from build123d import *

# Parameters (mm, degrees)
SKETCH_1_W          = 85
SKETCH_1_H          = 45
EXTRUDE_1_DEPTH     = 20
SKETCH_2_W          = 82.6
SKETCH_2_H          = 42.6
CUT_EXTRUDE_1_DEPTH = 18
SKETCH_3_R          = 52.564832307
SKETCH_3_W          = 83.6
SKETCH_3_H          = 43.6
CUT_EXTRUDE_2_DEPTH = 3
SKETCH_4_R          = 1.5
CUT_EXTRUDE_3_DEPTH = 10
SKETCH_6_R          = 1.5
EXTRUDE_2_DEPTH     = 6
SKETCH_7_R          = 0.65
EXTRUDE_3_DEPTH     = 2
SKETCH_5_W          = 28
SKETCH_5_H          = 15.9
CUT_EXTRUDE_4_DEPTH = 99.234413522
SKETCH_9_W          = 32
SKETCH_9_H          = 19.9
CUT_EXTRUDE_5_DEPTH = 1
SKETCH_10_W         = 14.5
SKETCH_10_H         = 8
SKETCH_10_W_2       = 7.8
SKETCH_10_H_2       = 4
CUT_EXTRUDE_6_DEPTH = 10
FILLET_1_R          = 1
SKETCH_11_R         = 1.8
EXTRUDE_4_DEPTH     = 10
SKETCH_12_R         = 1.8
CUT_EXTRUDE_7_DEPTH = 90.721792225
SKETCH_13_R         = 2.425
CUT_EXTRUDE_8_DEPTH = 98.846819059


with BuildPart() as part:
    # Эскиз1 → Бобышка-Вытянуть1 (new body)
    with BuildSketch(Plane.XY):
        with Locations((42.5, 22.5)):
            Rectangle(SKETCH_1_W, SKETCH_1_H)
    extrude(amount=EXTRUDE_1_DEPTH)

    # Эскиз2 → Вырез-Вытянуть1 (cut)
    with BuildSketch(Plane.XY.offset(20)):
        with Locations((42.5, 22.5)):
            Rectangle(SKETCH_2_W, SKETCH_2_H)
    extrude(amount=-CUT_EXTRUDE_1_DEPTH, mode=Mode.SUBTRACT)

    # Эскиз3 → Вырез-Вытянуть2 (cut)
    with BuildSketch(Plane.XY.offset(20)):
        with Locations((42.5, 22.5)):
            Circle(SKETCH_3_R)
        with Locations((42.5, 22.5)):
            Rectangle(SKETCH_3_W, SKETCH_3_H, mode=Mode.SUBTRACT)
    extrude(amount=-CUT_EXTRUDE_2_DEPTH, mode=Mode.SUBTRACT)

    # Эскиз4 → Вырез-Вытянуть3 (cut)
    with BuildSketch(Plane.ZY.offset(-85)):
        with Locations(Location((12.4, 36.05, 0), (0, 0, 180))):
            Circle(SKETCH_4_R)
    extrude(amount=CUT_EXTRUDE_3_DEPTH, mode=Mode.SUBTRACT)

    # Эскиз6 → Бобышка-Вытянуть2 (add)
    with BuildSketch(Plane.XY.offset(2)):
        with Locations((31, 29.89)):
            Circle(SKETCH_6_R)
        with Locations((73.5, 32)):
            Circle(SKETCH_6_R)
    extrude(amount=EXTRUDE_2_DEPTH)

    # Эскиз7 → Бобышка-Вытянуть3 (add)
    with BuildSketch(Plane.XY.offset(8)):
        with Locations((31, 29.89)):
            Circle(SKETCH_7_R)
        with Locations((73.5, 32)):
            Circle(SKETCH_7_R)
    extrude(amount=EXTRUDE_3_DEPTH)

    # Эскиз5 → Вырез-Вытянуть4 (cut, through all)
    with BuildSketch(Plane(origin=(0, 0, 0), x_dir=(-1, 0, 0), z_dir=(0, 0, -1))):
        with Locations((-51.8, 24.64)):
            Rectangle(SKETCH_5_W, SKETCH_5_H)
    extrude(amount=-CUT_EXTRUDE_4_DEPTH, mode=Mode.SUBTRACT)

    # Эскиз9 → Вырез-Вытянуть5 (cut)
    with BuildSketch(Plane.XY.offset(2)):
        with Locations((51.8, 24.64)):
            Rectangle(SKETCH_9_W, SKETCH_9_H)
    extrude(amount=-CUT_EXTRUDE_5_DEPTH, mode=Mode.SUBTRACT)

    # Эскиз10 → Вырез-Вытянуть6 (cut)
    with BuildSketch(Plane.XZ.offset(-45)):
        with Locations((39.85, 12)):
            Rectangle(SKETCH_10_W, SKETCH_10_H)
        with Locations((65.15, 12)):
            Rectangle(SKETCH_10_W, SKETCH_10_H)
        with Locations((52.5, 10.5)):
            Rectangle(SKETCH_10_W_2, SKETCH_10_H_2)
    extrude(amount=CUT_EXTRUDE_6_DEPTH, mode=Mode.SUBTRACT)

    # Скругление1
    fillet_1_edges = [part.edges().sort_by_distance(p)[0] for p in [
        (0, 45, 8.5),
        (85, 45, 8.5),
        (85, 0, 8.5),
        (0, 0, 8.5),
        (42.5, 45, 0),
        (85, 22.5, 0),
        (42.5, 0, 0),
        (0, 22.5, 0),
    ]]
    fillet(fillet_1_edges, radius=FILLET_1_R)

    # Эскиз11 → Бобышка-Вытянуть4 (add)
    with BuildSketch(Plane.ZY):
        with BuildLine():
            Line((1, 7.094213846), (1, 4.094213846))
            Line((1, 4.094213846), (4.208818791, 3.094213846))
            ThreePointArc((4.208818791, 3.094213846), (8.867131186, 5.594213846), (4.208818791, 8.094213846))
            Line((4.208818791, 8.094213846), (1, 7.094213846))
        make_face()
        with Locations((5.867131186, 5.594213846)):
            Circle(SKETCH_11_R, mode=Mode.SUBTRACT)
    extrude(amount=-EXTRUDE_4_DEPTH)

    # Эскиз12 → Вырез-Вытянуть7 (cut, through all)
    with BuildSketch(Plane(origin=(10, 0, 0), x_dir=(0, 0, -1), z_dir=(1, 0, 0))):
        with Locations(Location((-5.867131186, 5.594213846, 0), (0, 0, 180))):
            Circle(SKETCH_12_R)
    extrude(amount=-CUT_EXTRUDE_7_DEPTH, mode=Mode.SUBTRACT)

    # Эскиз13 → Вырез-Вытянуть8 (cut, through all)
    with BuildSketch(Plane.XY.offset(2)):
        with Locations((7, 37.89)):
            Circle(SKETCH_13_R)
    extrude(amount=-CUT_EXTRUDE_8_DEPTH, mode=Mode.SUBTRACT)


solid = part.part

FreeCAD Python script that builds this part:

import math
import FreeCAD as App
import Part
import Sketcher

V = App.Vector
Q = App.Units.Quantity


def edges_at(feature, points):
    """Names of the edges that pass closest to the given points."""
    edges = feature.Shape.Edges
    near = lambda p: min(range(len(edges)), key=lambda i: edges[i].distToShape(Part.Vertex(*p))[0])
    return sorted({f"Edge{near(p) + 1}" for p in points})


def add_polygon(sketch, points):
    """Adds a closed chain of lines whose ends are joined by coincident constraints."""
    first, n = sketch.GeometryCount, len(points)
    for a, b in zip(points, points[1:] + points[:1]):
        sketch.addGeometry(Part.LineSegment(App.Vector(*a, 0), App.Vector(*b, 0)), False)
    for i in range(n):
        sketch.addConstraint(Sketcher.Constraint("Coincident", first + i, 2, first + (i + 1) % n, 1))

doc = App.newDocument("Part")
body = doc.addObject("PartDesign::Body", "Body")

# Sketch on XY plane
sketch1 = body.newObject("Sketcher::SketchObject", "Sketch")
sketch1.AttachmentSupport = (doc.getObject("XY_Plane"), [""])
sketch1.MapMode = "FlatFace"
add_polygon(sketch1, [(0, 45), (0, 0), (85, 0), (85, 45)])  # lines 0-3
sketch1.addConstraint(Sketcher.Constraint("Vertical", 0))
sketch1.addConstraint(Sketcher.Constraint("Horizontal", 1))
sketch1.addConstraint(Sketcher.Constraint("Vertical", 2))
sketch1.addConstraint(Sketcher.Constraint("Horizontal", 3))
sketch1.addConstraint(Sketcher.Constraint("Coincident", 0, 2, -1, 1))
sketch1.addConstraint(Sketcher.Constraint("DistanceX", 1, 1, 1, 2, Q("85 mm")))
sketch1.addConstraint(Sketcher.Constraint("DistanceY", 0, 2, 0, 1, Q("45 mm")))
pad1 = body.newObject("PartDesign::Pad", "Pad")
pad1.Profile = sketch1
pad1.Length = 20

# Sketch on XY plane
sketch2 = body.newObject("Sketcher::SketchObject", "Sketch001")
sketch2.AttachmentSupport = (doc.getObject("XY_Plane"), [""])
sketch2.MapMode = "FlatFace"
sketch2.AttachmentOffset = App.Placement(V(0, 0, 20), App.Rotation())
add_polygon(sketch2, [(1, 44), (1, 1), (84, 1), (84, 44)])  # lines 0-3
sketch2.addConstraint(Sketcher.Constraint("Vertical", 0))
sketch2.addConstraint(Sketcher.Constraint("Horizontal", 1))
sketch2.addConstraint(Sketcher.Constraint("Vertical", 2))
sketch2.addConstraint(Sketcher.Constraint("Horizontal", 3))
sketch2.addConstraint(Sketcher.Constraint("DistanceX", 1, 1, 1, 2, Q("82.6 mm")))
sketch2.addConstraint(Sketcher.Constraint("DistanceY", 0, 2, 0, 1, Q("42.6 mm")))
sketch2.addConstraint(Sketcher.Constraint("DistanceX", -1, 1, 0, 2, Q("1.2 mm")))
sketch2.addConstraint(Sketcher.Constraint("DistanceY", -1, 1, 0, 2, Q("1.2 mm")))
pocket1 = body.newObject("PartDesign::Pocket", "Pocket")
pocket1.Profile = sketch2
pocket1.Length = 18

# Sketch on XY plane
sketch3 = body.newObject("Sketcher::SketchObject", "Sketch002")
sketch3.AttachmentSupport = (doc.getObject("XY_Plane"), [""])
sketch3.MapMode = "FlatFace"
sketch3.AttachmentOffset = App.Placement(V(0, 0, 20), App.Rotation())
sketch3.addGeometry(Part.Circle(V(42, 22, 0), V(0, 0, 1), 53), False)  # 0
add_polygon(sketch3, [(84, 1), (1, 1), (1, 44), (84, 44)])  # lines 1-4
sketch3.addConstraint(Sketcher.Constraint("Horizontal", 1))
sketch3.addConstraint(Sketcher.Constraint("Vertical", 2))
sketch3.addConstraint(Sketcher.Constraint("Horizontal", 3))
sketch3.addConstraint(Sketcher.Constraint("Vertical", 4))
sketch3.addConstraint(Sketcher.Constraint("DistanceX", 1, 2, 1, 1, Q("83.6 mm")))
sketch3.addConstraint(Sketcher.Constraint("DistanceY", 2, 1, 2, 2, Q("43.6 mm")))
sketch3.addConstraint(Sketcher.Constraint("DistanceX", -1, 1, 0, 3, Q("42.5 mm")))
sketch3.addConstraint(Sketcher.Constraint("DistanceY", -1, 1, 0, 3, Q("22.5 mm")))
sketch3.addConstraint(Sketcher.Constraint("DistanceX", -1, 1, 1, 2, Q("0.7 mm")))
sketch3.addConstraint(Sketcher.Constraint("DistanceY", -1, 1, 1, 2, Q("0.7 mm")))
sketch3.addConstraint(Sketcher.Constraint("Diameter", 0, Q("105.129665 mm")))
pocket2 = body.newObject("PartDesign::Pocket", "Pocket001")
pocket2.Profile = sketch3
pocket2.Length = 3

# Sketch on YZ plane
sketch4 = body.newObject("Sketcher::SketchObject", "Sketch003")
sketch4.AttachmentSupport = (doc.getObject("YZ_Plane"), [""])
sketch4.MapMode = "FlatFace"
sketch4.AttachmentOffset = App.Placement(V(0, 0, 85), App.Rotation())
sketch4.addGeometry(Part.Circle(V(36, 12.4, 0), V(0, 0, 1), 1.5), False)
sketch4.addConstraint(Sketcher.Constraint("Diameter", 0, Q("3 mm")))
sketch4.addConstraint(Sketcher.Constraint("DistanceY", -1, 1, 0, 3, Q("12.4 mm")))
sketch4.addConstraint(Sketcher.Constraint("DistanceX", -1, 1, 0, 3, Q("36.05 mm")))
pocket3 = body.newObject("PartDesign::Pocket", "Pocket002")
pocket3.Profile = sketch4
pocket3.Length = 10

# Sketch on XY plane
sketch5 = body.newObject("Sketcher::SketchObject", "Sketch004")
sketch5.AttachmentSupport = (doc.getObject("XY_Plane"), [""])
sketch5.MapMode = "FlatFace"
sketch5.AttachmentOffset = App.Placement(V(0, 0, 2), App.Rotation())
sketch5.addGeometry(Part.Circle(V(31, 29.9, 0), V(0, 0, 1), 1.5), False)
sketch5.addGeometry(Part.Circle(V(73.5, 32, 0), V(0, 0, 1), 1.5), False)
sketch5.addConstraint(Sketcher.Constraint("Equal", 0, 1))
sketch5.addConstraint(Sketcher.Constraint("Diameter", 0, Q("3 mm")))
sketch5.addConstraint(Sketcher.Constraint("DistanceX", -1, 1, 0, 3, Q("31 mm")))
sketch5.addConstraint(Sketcher.Constraint("DistanceY", -1, 1, 1, 3, Q("32 mm")))
sketch5.addConstraint(Sketcher.Constraint("DistanceX", -1, 1, 1, 3, Q("73.5 mm")))
sketch5.addConstraint(Sketcher.Constraint("DistanceY", -1, 1, 0, 3, Q("29.89 mm")))
pad2 = body.newObject("PartDesign::Pad", "Pad001")
pad2.Profile = sketch5
pad2.Length = 6

# Sketch on XY plane
sketch6 = body.newObject("Sketcher::SketchObject", "Sketch005")
sketch6.AttachmentSupport = (doc.getObject("XY_Plane"), [""])
sketch6.MapMode = "FlatFace"
sketch6.AttachmentOffset = App.Placement(V(0, 0, 8), App.Rotation())
sketch6.addGeometry(Part.Circle(V(31, 29.9, 0), V(0, 0, 1), 0.7), False)
sketch6.addGeometry(Part.Circle(V(73.5, 32, 0), V(0, 0, 1), 0.7), False)
sketch6.addConstraint(Sketcher.Constraint("Equal", 0, 1))
sketch6.addConstraint(Sketcher.Constraint("Diameter", 0, Q("1.3 mm")))
sketch6.addConstraint(Sketcher.Constraint("DistanceX", -1, 1, 0, 3, Q("31 mm")))
sketch6.addConstraint(Sketcher.Constraint("DistanceY", -1, 1, 1, 3, Q("32 mm")))
sketch6.addConstraint(Sketcher.Constraint("DistanceX", -1, 1, 1, 3, Q("73.5 mm")))
sketch6.addConstraint(Sketcher.Constraint("DistanceY", -1, 1, 0, 3, Q("29.89 mm")))
pad3 = body.newObject("PartDesign::Pad", "Pad002")
pad3.Profile = sketch6
pad3.Length = 2

# Sketch on XY plane
sketch7 = body.newObject("Sketcher::SketchObject", "Sketch006")
sketch7.AttachmentSupport = (doc.getObject("XY_Plane"), [""])
sketch7.MapMode = "FlatFace"
add_polygon(sketch7, [(66, 33), (66, 17), (38, 17), (38, 33)])  # lines 0-3
sketch7.addConstraint(Sketcher.Constraint("Vertical", 0))
sketch7.addConstraint(Sketcher.Constraint("Horizontal", 1))
sketch7.addConstraint(Sketcher.Constraint("Vertical", 2))
sketch7.addConstraint(Sketcher.Constraint("Horizontal", 3))
sketch7.addConstraint(Sketcher.Constraint("DistanceX", 1, 2, 1, 1, Q("28 mm")))
sketch7.addConstraint(Sketcher.Constraint("DistanceY", 0, 2, 0, 1, Q("15.9 mm")))
sketch7.addConstraint(Sketcher.Constraint("DistanceX", -1, 1, 0, 2, Q("65.8 mm")))
sketch7.addConstraint(Sketcher.Constraint("DistanceY", -1, 1, 0, 2, Q("16.69 mm")))
pocket4 = body.newObject("PartDesign::Pocket", "Pocket003")
pocket4.Profile = sketch7
pocket4.Type = "ThroughAll"
pocket4.Reversed = True

# Sketch on XY plane
sketch8 = body.newObject("Sketcher::SketchObject", "Sketch007")
sketch8.AttachmentSupport = (doc.getObject("XY_Plane"), [""])
sketch8.MapMode = "FlatFace"
sketch8.AttachmentOffset = App.Placement(V(0, 0, 2), App.Rotation())
add_polygon(sketch8, [(36, 35), (36, 15), (68, 15), (68, 35)])  # lines 0-3
sketch8.addConstraint(Sketcher.Constraint("Vertical", 0))
sketch8.addConstraint(Sketcher.Constraint("Horizontal", 1))
sketch8.addConstraint(Sketcher.Constraint("Vertical", 2))
sketch8.addConstraint(Sketcher.Constraint("Horizontal", 3))
sketch8.addConstraint(Sketcher.Constraint("DistanceX", 1, 1, 1, 2, Q("32 mm")))
sketch8.addConstraint(Sketcher.Constraint("DistanceY", 0, 2, 0, 1, Q("19.9 mm")))
sketch8.addConstraint(Sketcher.Constraint("DistanceX", -1, 1, 0, 2, Q("35.8 mm")))
sketch8.addConstraint(Sketcher.Constraint("DistanceY", -1, 1, 0, 2, Q("14.69 mm")))
pocket5 = body.newObject("PartDesign::Pocket", "Pocket004")
pocket5.Profile = sketch8
pocket5.Length = 1

# Sketch on XZ plane
sketch9 = body.newObject("Sketcher::SketchObject", "Sketch008")
sketch9.AttachmentSupport = (doc.getObject("XZ_Plane"), [""])
sketch9.MapMode = "FlatFace"
sketch9.AttachmentOffset = App.Placement(V(0, 0, -45), App.Rotation())
add_polygon(sketch9, [(32.6, 16), (32.6, 8), (47.1, 8), (47.1, 16)])  # lines 0-3
add_polygon(sketch9, [(57.9, 16), (57.9, 8), (72.4, 8), (72.4, 16)])  # lines 4-7
add_polygon(sketch9, [(48.6, 12.5), (48.6, 8.5), (56.4, 8.5), (56.4, 12.5)])  # lines 8-11
sketch9.addConstraint(Sketcher.Constraint("Vertical", 0))
sketch9.addConstraint(Sketcher.Constraint("Horizontal", 1))
sketch9.addConstraint(Sketcher.Constraint("Vertical", 2))
sketch9.addConstraint(Sketcher.Constraint("Horizontal", 3))
sketch9.addConstraint(Sketcher.Constraint("Vertical", 4))
sketch9.addConstraint(Sketcher.Constraint("Horizontal", 5))
sketch9.addConstraint(Sketcher.Constraint("Vertical", 6))
sketch9.addConstraint(Sketcher.Constraint("Horizontal", 7))
sketch9.addConstraint(Sketcher.Constraint("Vertical", 8))
sketch9.addConstraint(Sketcher.Constraint("Horizontal", 9))
sketch9.addConstraint(Sketcher.Constraint("Vertical", 10))
sketch9.addConstraint(Sketcher.Constraint("Horizontal", 11))
sketch9.addConstraint(Sketcher.Constraint("Horizontal", 1, 2, 4, 2))
sketch9.addConstraint(Sketcher.Constraint("Horizontal", 3, 2, 6, 2))
sketch9.addConstraint(Sketcher.Constraint("Equal", 3, 5))
sketch9.addConstraint(Sketcher.Constraint("DistanceY", 0, 2, 0, 1, Q("8 mm")))
sketch9.addConstraint(Sketcher.Constraint("DistanceY", 8, 2, 8, 1, Q("4 mm")))
sketch9.addConstraint(Sketcher.Constraint("DistanceX", 1, 1, 1, 2, Q("14.5 mm")))
sketch9.addConstraint(Sketcher.Constraint("DistanceX", 9, 1, 9, 2, Q("7.8 mm")))
sketch9.addConstraint(Sketcher.Constraint("DistanceY", -1, 1, 0, 2, Q("8 mm")))
sketch9.addConstraint(Sketcher.Constraint("DistanceX", 0, 2, 8, 2, Q("16 mm")))
sketch9.addConstraint(Sketcher.Constraint("DistanceX", -1, 1, 0, 2, Q("32.6 mm")))
sketch9.addConstraint(Sketcher.Constraint("DistanceX", -1, 1, 4, 2, Q("57.9 mm")))
sketch9.addConstraint(Sketcher.Constraint("DistanceY", -1, 1, 8, 2, Q("8.5 mm")))
pocket6 = body.newObject("PartDesign::Pocket", "Pocket005")
pocket6.Profile = sketch9
pocket6.Length = 10
pocket6.Reversed = True
doc.recompute()

fillet = body.newObject("PartDesign::Fillet", "Fillet")
fillet.Base = (pocket6, edges_at(pocket6, [
    (0, 45, 8.5),
    (85, 45, 8.5),
    (85, 0, 8.5),
    (0, 0, 8.5),
    (42.5, 45, 0),
    (85, 22.5, 0),
    (42.5, 0, 0),
    (0, 22.5, 0),
]))
fillet.Radius = 1

# Sketch on YZ plane
sketch10 = body.newObject("Sketcher::SketchObject", "Sketch009")
sketch10.AttachmentSupport = (doc.getObject("YZ_Plane"), [""])
sketch10.MapMode = "FlatFace"
sketch10.addGeometry(Part.LineSegment(V(7.1, 1, 0), V(4.1, 1, 0)), False)
sketch10.addGeometry(Part.LineSegment(V(4.1, 1, 0), V(3.1, 4.2, 0)), False)
sketch10.addGeometry(Part.ArcOfCircle(Part.Circle(V(5.6, 5.9, 0), V(0, 0, 1), 3), math.radians(-34), math.radians(214)), False)
sketch10.addGeometry(Part.LineSegment(V(8.1, 4.2, 0), V(7.1, 1, 0)), False)
sketch10.addGeometry(Part.Circle(V(5.6, 5.9, 0), V(0, 0, 1), 1.8), False)
sketch10.addConstraint(Sketcher.Constraint("Coincident", 0, 2, 1, 1))
sketch10.addConstraint(Sketcher.Constraint("Coincident", 1, 2, 2, 2))
sketch10.addConstraint(Sketcher.Constraint("Coincident", 2, 1, 3, 1))
sketch10.addConstraint(Sketcher.Constraint("Coincident", 3, 2, 0, 1))
sketch10.addConstraint(Sketcher.Constraint("Horizontal", 0))
sketch10.addConstraint(Sketcher.Constraint("Coincident", 4, 3, 2, 3))
sketch10.addConstraint(Sketcher.Constraint("Horizontal", 1, 2, 2, 1))
sketch10.addConstraint(Sketcher.Constraint("Equal", 1, 3))
sketch10.addConstraint(Sketcher.Constraint("Radius", 2, Q("3 mm")))
sketch10.addConstraint(Sketcher.Constraint("Diameter", 4, Q("3.6 mm")))
sketch10.addConstraint(Sketcher.Constraint("DistanceX", 0, 2, 0, 1, Q("3 mm")))
sketch10.addConstraint(Sketcher.Constraint("DistanceY", -1, 1, 0, 2, Q("1 mm")))
sketch10.addConstraint(Sketcher.Constraint("DistanceX", 1, 2, 0, 2, Q("1 mm")))
sketch10.addConstraint(Sketcher.Constraint("Distance", 1, Q("3.361029 mm")))
sketch10.addConstraint(Sketcher.Constraint("DistanceX", -1, 1, 2, 3, Q("5.594214 mm")))
pad4 = body.newObject("PartDesign::Pad", "Pad003")
pad4.Profile = sketch10
pad4.Length = 10

# Sketch on YZ plane
sketch11 = body.newObject("Sketcher::SketchObject", "Sketch010")
sketch11.AttachmentSupport = (doc.getObject("YZ_Plane"), [""])
sketch11.MapMode = "FlatFace"
sketch11.AttachmentOffset = App.Placement(V(0, 0, 10), App.Rotation())
sketch11.addGeometry(Part.Circle(V(5.6, 5.9, 0), V(0, 0, 1), 1.8), False)
sketch11.addConstraint(Sketcher.Constraint("Diameter", 0, Q("3.6 mm")))
sketch11.addConstraint(Sketcher.Constraint("DistanceY", -1, 1, 0, 3, Q("5.867131 mm")))
sketch11.addConstraint(Sketcher.Constraint("DistanceX", -1, 1, 0, 3, Q("5.594214 mm")))
pocket7 = body.newObject("PartDesign::Pocket", "Pocket006")
pocket7.Profile = sketch11
pocket7.Type = "ThroughAll"

# Sketch on XY plane
sketch12 = body.newObject("Sketcher::SketchObject", "Sketch011")
sketch12.AttachmentSupport = (doc.getObject("XY_Plane"), [""])
sketch12.MapMode = "FlatFace"
sketch12.AttachmentOffset = App.Placement(V(0, 0, 2), App.Rotation())
sketch12.addGeometry(Part.Circle(V(7, 37.9, 0), V(0, 0, 1), 2.4), False)
sketch12.addConstraint(Sketcher.Constraint("Diameter", 0, Q("4.85 mm")))
sketch12.addConstraint(Sketcher.Constraint("DistanceX", -1, 1, 0, 3, Q("7 mm")))
sketch12.addConstraint(Sketcher.Constraint("DistanceY", -1, 1, 0, 3, Q("37.89 mm")))
pocket8 = body.newObject("PartDesign::Pocket", "Pocket007")
pocket8.Profile = sketch12
pocket8.Type = "ThroughAll"

doc.recompute()
